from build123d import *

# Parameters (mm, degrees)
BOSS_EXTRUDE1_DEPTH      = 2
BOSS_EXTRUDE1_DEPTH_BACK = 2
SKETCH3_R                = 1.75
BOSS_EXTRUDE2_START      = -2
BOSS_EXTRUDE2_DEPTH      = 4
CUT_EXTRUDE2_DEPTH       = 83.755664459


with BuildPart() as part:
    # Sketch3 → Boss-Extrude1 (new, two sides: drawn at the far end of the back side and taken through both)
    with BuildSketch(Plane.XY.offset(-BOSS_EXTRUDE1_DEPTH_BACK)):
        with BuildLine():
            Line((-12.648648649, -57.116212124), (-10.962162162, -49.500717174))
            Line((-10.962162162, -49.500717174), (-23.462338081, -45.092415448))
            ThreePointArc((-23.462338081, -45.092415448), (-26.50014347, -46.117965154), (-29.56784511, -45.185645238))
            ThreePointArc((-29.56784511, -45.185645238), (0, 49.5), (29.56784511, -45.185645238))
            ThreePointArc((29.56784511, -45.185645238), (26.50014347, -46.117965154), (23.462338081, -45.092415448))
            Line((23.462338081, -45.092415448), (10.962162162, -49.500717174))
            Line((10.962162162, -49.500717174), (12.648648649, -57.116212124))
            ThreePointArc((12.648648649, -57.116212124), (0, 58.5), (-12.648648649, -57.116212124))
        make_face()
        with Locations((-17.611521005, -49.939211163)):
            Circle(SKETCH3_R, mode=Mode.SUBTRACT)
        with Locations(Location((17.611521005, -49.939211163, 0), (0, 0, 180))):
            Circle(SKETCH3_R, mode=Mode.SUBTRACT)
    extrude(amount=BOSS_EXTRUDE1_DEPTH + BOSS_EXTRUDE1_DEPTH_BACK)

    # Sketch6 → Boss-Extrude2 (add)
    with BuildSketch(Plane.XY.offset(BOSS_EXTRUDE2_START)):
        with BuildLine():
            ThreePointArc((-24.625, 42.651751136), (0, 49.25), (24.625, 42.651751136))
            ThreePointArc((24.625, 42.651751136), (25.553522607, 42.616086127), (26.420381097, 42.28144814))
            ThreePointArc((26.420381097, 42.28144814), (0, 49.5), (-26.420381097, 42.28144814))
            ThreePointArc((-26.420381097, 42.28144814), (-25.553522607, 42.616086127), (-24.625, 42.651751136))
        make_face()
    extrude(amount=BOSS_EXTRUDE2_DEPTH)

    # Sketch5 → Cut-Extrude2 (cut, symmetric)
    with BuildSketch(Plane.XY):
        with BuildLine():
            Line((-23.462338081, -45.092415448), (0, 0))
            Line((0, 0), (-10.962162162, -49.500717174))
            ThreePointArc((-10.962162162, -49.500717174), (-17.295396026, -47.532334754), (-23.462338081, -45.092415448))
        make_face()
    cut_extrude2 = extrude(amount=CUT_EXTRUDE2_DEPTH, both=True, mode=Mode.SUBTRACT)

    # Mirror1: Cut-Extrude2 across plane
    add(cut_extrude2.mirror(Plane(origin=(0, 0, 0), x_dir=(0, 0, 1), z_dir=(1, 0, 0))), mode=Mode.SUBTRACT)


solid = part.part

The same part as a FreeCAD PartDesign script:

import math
import FreeCAD as App
import Part
import Sketcher
Q = App.Units.Quantity

doc = App.newDocument("Part")
body = doc.addObject("PartDesign::Body", "Body")

sketch1 = body.newObject("Sketcher::SketchObject", "Sketch")
sketch1.AttachmentSupport = (doc.getObject("XY_Plane"), [""])
sketch1.MapMode = "FlatFace"
sketch1.addGeometry(Part.LineSegment(App.Vector(-12.648649, -57.116212, 0), App.Vector(-10.962162, -49.500717, 0)), False)
sketch1.addGeometry(Part.LineSegment(App.Vector(-10.962162, -49.500717, 0), App.Vector(-23.462338, -45.092415, 0)), False)
sketch1.addGeometry(Part.ArcOfCircle(Part.Circle(App.Vector(-26.580301, -40.868577, 0), App.Vector(0, 0, 1), 5.25), math.radians(-124.684432), math.radians(-53.565915)), False)
sketch1.addGeometry(Part.ArcOfCircle(Part.Circle(App.Vector(0, -2.459454, 0), App.Vector(0, 0, 1), 51.959454), math.radians(-55.315568), math.radians(235.315568)), False)
sketch1.addGeometry(Part.ArcOfCircle(Part.Circle(App.Vector(26.580301, -40.868577, 0), App.Vector(0, 0, 1), 5.25), math.radians(-126.434085), math.radians(-55.315568)), False)
sketch1.addGeometry(Part.LineSegment(App.Vector(23.462338, -45.092415, 0), App.Vector(10.962162, -49.500717, 0)), False)
sketch1.addGeometry(Part.LineSegment(App.Vector(10.962162, -49.500717, 0), App.Vector(12.648649, -57.116212, 0)), False)
sketch1.addGeometry(Part.ArcOfCircle(Part.Circle(App.Vector(0, 0, 0), App.Vector(0, 0, 1), 58.5), math.radians(-77.51311), math.radians(257.51311)), False)
sketch1.addGeometry(Part.Circle(App.Vector(-17.611521, -49.939211, 0), App.Vector(0, 0, 1), 1.75), False)
sketch1.addGeometry(Part.Circle(App.Vector(17.611521, -49.939211, 0), App.Vector(0, 0, 1), 1.75), False)
sketch1.addConstraint(Sketcher.Constraint("Coincident", 0, 2, 1, 1))
sketch1.addConstraint(Sketcher.Constraint("Coincident", 1, 2, 2, 2))
sketch1.addConstraint(Sketcher.Constraint("Tangent", 2, 1, 3, 2))
sketch1.addConstraint(Sketcher.Constraint("Tangent", 3, 1, 4, 2))
sketch1.addConstraint(Sketcher.Constraint("Coincident", 4, 1, 5, 1))
sketch1.addConstraint(Sketcher.Constraint("Coincident", 5, 2, 6, 1))
sketch1.addConstraint(Sketcher.Constraint("Coincident", 6, 2, 7, 1))
sketch1.addConstraint(Sketcher.Constraint("Coincident", 7, 2, 0, 1))
sketch1.addConstraint(Sketcher.Constraint("Coincident", 7, 3, -1, 1))
sketch1.addConstraint(Sketcher.Constraint("Equal", 2, 4))
sketch1.addConstraint(Sketcher.Constraint("Equal", 8, 9))
sketch1.addConstraint(Sketcher.Constraint("Symmetric", 2, 3, 4, 3, -2))
sketch1.addConstraint(Sketcher.Constraint("Symmetric", 8, 3, 9, 3, -2))
sketch1.addConstraint(Sketcher.Constraint("Symmetric", 0, 2, 5, 2, -2))
sketch1.addConstraint(Sketcher.Constraint("Horizontal", 1, 2, 4, 1))
sketch1.addConstraint(Sketcher.Constraint("Horizontal", 6, 2, 7, 2))
sketch1.addConstraint(Sketcher.Constraint("Diameter", 8, Q("3.5 mm")))
sketch1.addConstraint(Sketcher.Constraint("Radius", 7, Q("58.5 mm")))
sketch1.addConstraint(Sketcher.Constraint("Radius", 2, Q("5.25 mm")))
sketch1.addConstraint(Sketcher.Constraint("Distance", 0, Q("7.8 mm")))
sketch1.addConstraint(Sketcher.Constraint("Radius", 3, Q("51.959454 mm")))
sketch1.addConstraint(Sketcher.Constraint("DistanceY", 6, 2, 9, 3, Q("7.177001 mm")))
sketch1.addConstraint(Sketcher.Constraint("DistanceX", 2, 3, -1, 1, Q("26.580301 mm")))
sketch1.addConstraint(Sketcher.Constraint("DistanceY", 0, 2, 1, 2, Q("4.408302 mm")))
sketch1.addConstraint(Sketcher.Constraint("DistanceX", 0, 2, 4, 1, Q("34.4245 mm")))
sketch1.addConstraint(Sketcher.Constraint("DistanceX", 8, 3, -1, 1, Q("17.611521 mm")))
sketch1.addConstraint(Sketcher.Constraint("DistanceY", 8, 3, -1, 1, Q("49.939211 mm")))
sketch1.addConstraint(Sketcher.Constraint("DistanceX", 1, 2, -1, 1, Q("23.462338 mm")))
pad1 = body.newObject("PartDesign::Pad", "Pad")
pad1.Profile = sketch1
pad1.Type = "TwoLengths"
pad1.Length = 2
pad1.Length2 = 2

sketch2 = body.newObject("Sketcher::SketchObject", "Sketch001")
sketch2.AttachmentSupport = (doc.getObject("XY_Plane"), [""])
sketch2.MapMode = "FlatFace"
sketch2.AttachmentOffset = App.Placement(App.Vector(0, 0, -2), App.Rotation())
sketch2.addGeometry(Part.ArcOfCircle(Part.Circle(App.Vector(0, 0, 0), App.Vector(0, 0, 1), 49.25), math.radians(60), math.radians(120)), False)
sketch2.addGeometry(Part.ArcOfCircle(Part.Circle(App.Vector(24.982174, 39.845954, 0), App.Vector(0, 0, 1), 2.828439), math.radians(59.437315), math.radians(97.254658)), False)
sketch2.addGeometry(Part.ArcOfCircle(Part.Circle(App.Vector(0, -2.459454, 0), App.Vector(0, 0, 1), 51.959454), math.radians(59.437315), math.radians(120.562685)), False)
sketch2.addGeometry(Part.ArcOfCircle(Part.Circle(App.Vector(-24.982174, 39.845954, 0), App.Vector(0, 0, 1), 2.828439), math.radians(82.745342), math.radians(120.562685)), False)
sketch2.addConstraint(Sketcher.Constraint("Coincident", 0, 1, 1, 2))
sketch2.addConstraint(Sketcher.Constraint("Tangent", 1, 1, 2, 1))
sketch2.addConstraint(Sketcher.Constraint("Tangent", 2, 2, 3, 2))
sketch2.addConstraint(Sketcher.Constraint("Coincident", 3, 1, 0, 2))
sketch2.addConstraint(Sketcher.Constraint("Coincident", 0, 3, -1, 1))
sketch2.addConstraint(Sketcher.Constraint("Equal", 1, 3))
sketch2.addConstraint(Sketcher.Constraint("Symmetric", 1, 3, 3, 3, -2))
sketch2.addConstraint(Sketcher.Constraint("Radius", 0, Q("49.25 mm")))
sketch2.addConstraint(Sketcher.Constraint("Radius", 1, Q("2.828439 mm")))
sketch2.addConstraint(Sketcher.Constraint("DistanceX", 3, 1, 0, 1, Q("49.25 mm")))
sketch2.addConstraint(Sketcher.Constraint("Radius", 2, Q("51.959454 mm")))
sketch2.addConstraint(Sketcher.Constraint("DistanceX", -1, 1, 1, 1, Q("26.420381 mm")))
pad2 = body.newObject("PartDesign::Pad", "Pad001")
pad2.Profile = sketch2
pad2.Length = 4

sketch3 = body.newObject("Sketcher::SketchObject", "Sketch002")
sketch3.AttachmentSupport = (doc.getObject("XY_Plane"), [""])
sketch3.MapMode = "FlatFace"
sketch3.addGeometry(Part.LineSegment(App.Vector(0, 0, 0), App.Vector(-23.462338, -45.092415, 0)), False)
sketch3.addGeometry(Part.ArcOfCircle(Part.Circle(App.Vector(11.961573, 35.428696, 0), App.Vector(0, 0, 1), 87.968761), math.radians(-113.746288), math.radians(-105.105044)), False)
sketch3.addGeometry(Part.LineSegment(App.Vector(-10.962162, -49.500717, 0), App.Vector(0, 0, 0)), False)
sketch3.addConstraint(Sketcher.Constraint("Coincident", 0, 2, 1, 1))
sketch3.addConstraint(Sketcher.Constraint("Coincident", 1, 2, 2, 1))
sketch3.addConstraint(Sketcher.Constraint("Coincident", 2, 2, 0, 1))
sketch3.addConstraint(Sketcher.Constraint("Coincident", 2, 2, -1, 1))
sketch3.addConstraint(Sketcher.Constraint("Distance", 2, Q("50.7 mm")))
sketch3.addConstraint(Sketcher.Constraint("Radius", 1, Q("87.968761 mm")))
sketch3.addConstraint(Sketcher.Constraint("DistanceY", 1, 2, 0, 2, Q("4.408302 mm")))
sketch3.addConstraint(Sketcher.Constraint("DistanceX", 0, 2, -1, 1, Q("23.462338 mm")))
sketch3.addConstraint(Sketcher.Constraint("DistanceX", 0, 2, 1, 3, Q("35.423911 mm")))
pocket1 = body.newObject("PartDesign::Pocket", "Pocket")
pocket1.Profile = sketch3
pocket1.Length = 167.511329
pocket1.Midplane = True
doc.recompute()

mirrored = body.newObject("PartDesign::Mirrored", "Mirrored")
mirrored.Originals = [pocket1]
mirrored.MirrorPlane = (doc.getObject("YZ_Plane"), [""])
body.Tip = mirrored

doc.recompute()
